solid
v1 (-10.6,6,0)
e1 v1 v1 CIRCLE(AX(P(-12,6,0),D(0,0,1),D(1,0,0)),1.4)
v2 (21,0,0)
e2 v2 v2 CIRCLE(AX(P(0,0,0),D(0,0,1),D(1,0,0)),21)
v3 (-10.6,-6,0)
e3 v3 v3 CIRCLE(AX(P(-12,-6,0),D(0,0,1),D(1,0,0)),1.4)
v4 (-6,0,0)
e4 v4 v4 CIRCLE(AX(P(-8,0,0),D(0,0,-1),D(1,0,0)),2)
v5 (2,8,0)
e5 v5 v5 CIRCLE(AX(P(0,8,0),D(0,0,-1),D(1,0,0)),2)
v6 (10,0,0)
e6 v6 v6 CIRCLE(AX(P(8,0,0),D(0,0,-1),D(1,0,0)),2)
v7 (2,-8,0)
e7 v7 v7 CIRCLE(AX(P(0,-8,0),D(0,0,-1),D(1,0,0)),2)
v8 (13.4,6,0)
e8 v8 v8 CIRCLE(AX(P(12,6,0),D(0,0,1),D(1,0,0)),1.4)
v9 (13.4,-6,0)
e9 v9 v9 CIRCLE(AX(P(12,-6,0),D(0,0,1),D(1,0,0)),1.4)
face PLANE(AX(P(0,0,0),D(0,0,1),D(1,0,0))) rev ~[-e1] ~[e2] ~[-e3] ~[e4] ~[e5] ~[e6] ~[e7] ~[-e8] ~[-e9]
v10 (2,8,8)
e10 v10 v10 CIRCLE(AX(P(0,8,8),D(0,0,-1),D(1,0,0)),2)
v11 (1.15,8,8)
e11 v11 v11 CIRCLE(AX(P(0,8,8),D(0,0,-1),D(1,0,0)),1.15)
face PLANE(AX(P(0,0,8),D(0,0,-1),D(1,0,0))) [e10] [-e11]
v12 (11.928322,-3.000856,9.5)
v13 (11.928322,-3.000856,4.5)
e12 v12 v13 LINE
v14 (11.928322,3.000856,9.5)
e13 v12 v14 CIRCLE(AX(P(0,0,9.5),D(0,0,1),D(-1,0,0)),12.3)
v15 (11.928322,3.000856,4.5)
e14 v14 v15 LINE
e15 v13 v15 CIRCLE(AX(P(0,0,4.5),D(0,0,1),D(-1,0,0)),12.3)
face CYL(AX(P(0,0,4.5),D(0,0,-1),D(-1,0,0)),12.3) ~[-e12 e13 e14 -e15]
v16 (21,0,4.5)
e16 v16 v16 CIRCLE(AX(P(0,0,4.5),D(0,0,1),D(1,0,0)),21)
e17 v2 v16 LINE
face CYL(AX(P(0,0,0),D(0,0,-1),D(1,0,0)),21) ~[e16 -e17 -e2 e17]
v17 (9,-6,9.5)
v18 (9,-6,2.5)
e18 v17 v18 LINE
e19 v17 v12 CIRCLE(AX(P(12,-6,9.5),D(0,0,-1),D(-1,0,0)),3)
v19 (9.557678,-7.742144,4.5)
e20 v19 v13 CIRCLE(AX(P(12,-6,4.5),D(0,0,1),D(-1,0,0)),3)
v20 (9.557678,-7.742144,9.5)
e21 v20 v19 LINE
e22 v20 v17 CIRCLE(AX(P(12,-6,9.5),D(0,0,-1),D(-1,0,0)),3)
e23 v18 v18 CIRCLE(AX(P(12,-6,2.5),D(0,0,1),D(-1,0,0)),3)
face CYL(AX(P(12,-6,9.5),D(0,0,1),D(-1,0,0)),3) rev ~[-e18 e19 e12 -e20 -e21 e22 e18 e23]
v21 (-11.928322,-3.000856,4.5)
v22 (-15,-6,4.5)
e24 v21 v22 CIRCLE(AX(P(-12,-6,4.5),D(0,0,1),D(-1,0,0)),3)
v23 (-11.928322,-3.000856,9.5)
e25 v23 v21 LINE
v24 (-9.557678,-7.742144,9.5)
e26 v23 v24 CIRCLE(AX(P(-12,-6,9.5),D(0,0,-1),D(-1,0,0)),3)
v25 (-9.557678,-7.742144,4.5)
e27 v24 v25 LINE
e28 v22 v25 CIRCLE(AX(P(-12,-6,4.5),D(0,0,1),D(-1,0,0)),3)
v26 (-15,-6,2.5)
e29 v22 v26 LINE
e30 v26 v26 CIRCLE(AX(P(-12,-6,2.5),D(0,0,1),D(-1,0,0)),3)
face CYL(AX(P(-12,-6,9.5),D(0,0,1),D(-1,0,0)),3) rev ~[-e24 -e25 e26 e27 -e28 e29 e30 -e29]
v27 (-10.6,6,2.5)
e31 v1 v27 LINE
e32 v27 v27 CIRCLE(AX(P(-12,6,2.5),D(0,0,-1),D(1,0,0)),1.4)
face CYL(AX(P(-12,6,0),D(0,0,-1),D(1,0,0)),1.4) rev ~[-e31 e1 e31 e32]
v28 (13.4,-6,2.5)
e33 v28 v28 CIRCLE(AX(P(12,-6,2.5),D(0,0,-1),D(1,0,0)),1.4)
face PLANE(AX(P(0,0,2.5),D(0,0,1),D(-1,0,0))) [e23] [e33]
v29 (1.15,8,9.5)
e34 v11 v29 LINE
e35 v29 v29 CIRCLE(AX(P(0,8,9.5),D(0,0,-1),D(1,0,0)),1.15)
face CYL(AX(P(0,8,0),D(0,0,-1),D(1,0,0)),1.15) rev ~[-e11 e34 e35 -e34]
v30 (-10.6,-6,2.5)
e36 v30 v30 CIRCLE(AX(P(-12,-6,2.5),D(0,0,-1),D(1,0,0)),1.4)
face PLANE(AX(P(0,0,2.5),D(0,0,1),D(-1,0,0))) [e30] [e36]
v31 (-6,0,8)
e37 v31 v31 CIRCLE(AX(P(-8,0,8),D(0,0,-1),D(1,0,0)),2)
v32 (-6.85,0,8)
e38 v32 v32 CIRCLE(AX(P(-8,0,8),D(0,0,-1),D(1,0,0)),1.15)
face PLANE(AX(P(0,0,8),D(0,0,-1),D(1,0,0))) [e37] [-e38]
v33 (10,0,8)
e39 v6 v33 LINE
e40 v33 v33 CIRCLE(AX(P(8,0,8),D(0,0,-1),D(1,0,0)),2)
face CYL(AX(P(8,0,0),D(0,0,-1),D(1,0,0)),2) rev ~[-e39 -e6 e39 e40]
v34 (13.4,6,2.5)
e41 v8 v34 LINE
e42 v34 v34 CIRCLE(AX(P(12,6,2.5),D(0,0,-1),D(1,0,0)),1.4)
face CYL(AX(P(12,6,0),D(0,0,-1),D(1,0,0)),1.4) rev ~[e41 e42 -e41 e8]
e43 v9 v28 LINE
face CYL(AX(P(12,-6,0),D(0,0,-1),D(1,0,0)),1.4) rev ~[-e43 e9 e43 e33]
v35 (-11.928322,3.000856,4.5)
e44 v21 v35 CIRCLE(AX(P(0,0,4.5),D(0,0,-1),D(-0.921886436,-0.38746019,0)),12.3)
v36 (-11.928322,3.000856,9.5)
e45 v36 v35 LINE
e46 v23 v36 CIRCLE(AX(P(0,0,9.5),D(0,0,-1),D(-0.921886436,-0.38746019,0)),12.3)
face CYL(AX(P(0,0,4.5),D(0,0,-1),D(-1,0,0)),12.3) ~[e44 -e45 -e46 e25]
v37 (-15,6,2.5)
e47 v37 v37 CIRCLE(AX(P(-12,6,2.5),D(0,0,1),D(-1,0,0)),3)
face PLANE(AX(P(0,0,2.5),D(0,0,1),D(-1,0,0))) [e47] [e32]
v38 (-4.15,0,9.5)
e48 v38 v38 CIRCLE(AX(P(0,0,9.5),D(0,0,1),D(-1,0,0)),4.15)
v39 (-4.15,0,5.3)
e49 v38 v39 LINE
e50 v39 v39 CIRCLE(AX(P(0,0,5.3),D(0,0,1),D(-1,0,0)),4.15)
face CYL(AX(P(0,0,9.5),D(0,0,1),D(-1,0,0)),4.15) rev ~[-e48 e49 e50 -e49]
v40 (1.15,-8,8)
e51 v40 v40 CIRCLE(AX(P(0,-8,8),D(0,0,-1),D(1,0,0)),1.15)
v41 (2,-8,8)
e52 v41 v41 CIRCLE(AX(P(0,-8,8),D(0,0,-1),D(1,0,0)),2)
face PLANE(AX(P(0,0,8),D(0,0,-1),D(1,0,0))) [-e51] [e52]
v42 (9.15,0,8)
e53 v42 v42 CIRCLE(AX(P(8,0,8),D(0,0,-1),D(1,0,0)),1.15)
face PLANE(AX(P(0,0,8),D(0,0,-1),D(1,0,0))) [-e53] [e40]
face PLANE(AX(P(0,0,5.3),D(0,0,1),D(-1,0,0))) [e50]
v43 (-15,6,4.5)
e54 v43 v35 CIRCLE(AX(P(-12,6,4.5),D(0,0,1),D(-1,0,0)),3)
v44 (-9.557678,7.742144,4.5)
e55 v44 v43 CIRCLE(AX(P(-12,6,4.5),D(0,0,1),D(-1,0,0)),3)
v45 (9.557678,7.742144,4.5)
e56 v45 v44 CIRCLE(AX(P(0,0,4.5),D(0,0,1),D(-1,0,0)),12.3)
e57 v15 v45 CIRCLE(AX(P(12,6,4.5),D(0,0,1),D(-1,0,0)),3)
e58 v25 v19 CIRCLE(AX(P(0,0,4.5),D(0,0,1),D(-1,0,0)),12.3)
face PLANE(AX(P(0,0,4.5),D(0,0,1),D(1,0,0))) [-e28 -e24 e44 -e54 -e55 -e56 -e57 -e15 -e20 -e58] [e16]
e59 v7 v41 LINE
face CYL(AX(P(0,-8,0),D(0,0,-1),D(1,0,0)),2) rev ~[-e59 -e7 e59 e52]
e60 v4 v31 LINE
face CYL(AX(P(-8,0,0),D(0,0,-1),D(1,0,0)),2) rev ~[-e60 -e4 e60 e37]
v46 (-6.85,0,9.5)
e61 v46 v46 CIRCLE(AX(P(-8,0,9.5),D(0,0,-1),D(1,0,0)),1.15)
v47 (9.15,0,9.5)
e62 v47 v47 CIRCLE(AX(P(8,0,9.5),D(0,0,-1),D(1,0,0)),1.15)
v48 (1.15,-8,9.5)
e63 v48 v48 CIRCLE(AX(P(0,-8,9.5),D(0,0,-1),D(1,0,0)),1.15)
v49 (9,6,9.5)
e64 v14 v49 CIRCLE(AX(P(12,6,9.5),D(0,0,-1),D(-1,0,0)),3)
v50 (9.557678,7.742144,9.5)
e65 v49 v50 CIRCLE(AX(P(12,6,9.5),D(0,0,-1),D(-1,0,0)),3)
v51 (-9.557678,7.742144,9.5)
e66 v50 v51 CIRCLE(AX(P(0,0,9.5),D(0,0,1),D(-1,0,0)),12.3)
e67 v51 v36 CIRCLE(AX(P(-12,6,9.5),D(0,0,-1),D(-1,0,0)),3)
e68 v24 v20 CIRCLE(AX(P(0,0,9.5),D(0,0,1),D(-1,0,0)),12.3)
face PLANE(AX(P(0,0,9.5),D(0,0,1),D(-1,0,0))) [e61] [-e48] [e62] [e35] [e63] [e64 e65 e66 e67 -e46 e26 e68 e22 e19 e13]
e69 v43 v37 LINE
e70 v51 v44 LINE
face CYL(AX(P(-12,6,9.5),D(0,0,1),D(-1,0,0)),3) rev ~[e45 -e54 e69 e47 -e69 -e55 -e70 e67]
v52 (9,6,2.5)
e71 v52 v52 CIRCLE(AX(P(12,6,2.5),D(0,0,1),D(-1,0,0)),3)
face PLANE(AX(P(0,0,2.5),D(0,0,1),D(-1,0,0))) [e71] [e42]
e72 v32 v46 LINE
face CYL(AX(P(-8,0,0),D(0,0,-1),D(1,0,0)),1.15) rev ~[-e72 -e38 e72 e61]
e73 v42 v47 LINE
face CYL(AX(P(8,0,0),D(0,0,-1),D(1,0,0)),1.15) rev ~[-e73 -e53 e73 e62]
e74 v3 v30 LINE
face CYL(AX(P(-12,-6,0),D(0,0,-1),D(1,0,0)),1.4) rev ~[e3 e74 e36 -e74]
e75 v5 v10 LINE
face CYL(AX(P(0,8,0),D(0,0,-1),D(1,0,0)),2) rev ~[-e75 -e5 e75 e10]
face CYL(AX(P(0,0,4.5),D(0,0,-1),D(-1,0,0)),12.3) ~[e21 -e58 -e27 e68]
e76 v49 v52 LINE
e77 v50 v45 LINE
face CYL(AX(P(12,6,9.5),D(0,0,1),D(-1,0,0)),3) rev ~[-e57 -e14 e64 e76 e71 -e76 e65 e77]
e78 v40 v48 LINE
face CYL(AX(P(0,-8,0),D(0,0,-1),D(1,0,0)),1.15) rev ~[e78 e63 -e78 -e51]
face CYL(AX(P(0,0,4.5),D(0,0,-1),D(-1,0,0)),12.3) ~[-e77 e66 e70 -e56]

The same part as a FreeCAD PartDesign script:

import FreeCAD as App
import Part
import Sketcher
Q = App.Units.Quantity

doc = App.newDocument("Part")
body = doc.addObject("PartDesign::Body", "Body")

# Sketch on XY plane
sketch1 = doc.addObject("Sketcher::SketchObject", "Sketch")
body.addObject(sketch1)
sketch1.AttachmentSupport = (doc.XY_Plane, [""])
sketch1.MapMode = "FlatFace"
sketch1.addGeometry(Part.Circle(App.Vector(0, 0, 0), App.Vector(0, 0, 1), 21), False)
sketch1.addConstraint([
    Sketcher.Constraint("Coincident", 0, 3, -1, 1),
    Sketcher.Constraint("Diameter", 0, Q("42 mm")),
])
pad1 = doc.addObject("PartDesign::Pad", "Pad")
body.addObject(pad1)
pad1.Profile = sketch1
pad1.Length = 4.5

# Sketch on XY plane
sketch2 = doc.addObject("Sketcher::SketchObject", "Sketch001")
body.addObject(sketch2)
sketch2.AttachmentSupport = (doc.XY_Plane, [""])
sketch2.MapMode = "FlatFace"
sketch2.AttachmentOffset = App.Placement(App.Vector(0, 0, 4.5), App.Rotation())
sketch2.addGeometry(Part.Circle(App.Vector(0, 0, 0), App.Vector(0, 0, 1), 12.3), False)
sketch2.addConstraint([
    Sketcher.Constraint("Coincident", 0, 3, -1, 1),
    Sketcher.Constraint("Diameter", 0, Q("24.6 mm")),
])
pad2 = doc.addObject("PartDesign::Pad", "Pad001")
body.addObject(pad2)
pad2.Profile = sketch2
pad2.Length = 5

# Sketch on XY plane
sketch3 = doc.addObject("Sketcher::SketchObject", "Sketch002")
body.addObject(sketch3)
sketch3.AttachmentSupport = (doc.XY_Plane, [""])
sketch3.MapMode = "FlatFace"
sketch3.AttachmentOffset = App.Placement(App.Vector(0, 0, 9.5), App.Rotation())
sketch3.addGeometry(Part.Circle(App.Vector(0, 0, 0), App.Vector(0, 0, 1), 4.15), False)
sketch3.addConstraint([
    Sketcher.Constraint("Coincident", 0, 3, -1, 1),
    Sketcher.Constraint("Diameter", 0, Q("8.3 mm")),
])
pocket1 = doc.addObject("PartDesign::Pocket", "Pocket")
body.addObject(pocket1)
pocket1.Profile = sketch3
pocket1.Length = 4.2

# Sketch on XY plane
sketch4 = doc.addObject("Sketcher::SketchObject", "Sketch003")
body.addObject(sketch4)
sketch4.AttachmentSupport = (doc.XY_Plane, [""])
sketch4.MapMode = "FlatFace"
sketch4.addGeometry([
    Part.Circle(App.Vector(8, 0, 0), App.Vector(0, 0, 1), 1.15),
    Part.Circle(App.Vector(0, -8, 0), App.Vector(0, 0, 1), 1.15),
    Part.Circle(App.Vector(0, 8, 0), App.Vector(0, 0, 1), 1.15),
    Part.Circle(App.Vector(-8, 0, 0), App.Vector(0, 0, 1), 1.15),
], False)
sketch4.addConstraint([
    Sketcher.Constraint("Equal", 0, 1),
    Sketcher.Constraint("Equal", 1, 2),
    Sketcher.Constraint("Equal", 2, 3),
    Sketcher.Constraint("Symmetric", 1, 3, 2, 3, -1, 1),
    Sketcher.Constraint("Symmetric", 0, 3, 3, 3, -1, 1),
    Sketcher.Constraint("PointOnObject", 0, 3, -1),
    Sketcher.Constraint("PointOnObject", 1, 3, -2),
    Sketcher.Constraint("Diameter", 0, Q("2.3 mm")),
    Sketcher.Constraint("DistanceY", 1, 3, 2, 3, Q("16 mm")),
    Sketcher.Constraint("DistanceX", 3, 3, 0, 3, Q("16 mm")),
])
pocket2 = doc.addObject("PartDesign::Pocket", "Pocket001")
body.addObject(pocket2)
pocket2.Profile = sketch4
pocket2.Type = "ThroughAll"
pocket2.Reversed = True

# Sketch on XY plane
sketch5 = doc.addObject("Sketcher::SketchObject", "Sketch004")
body.addObject(sketch5)
sketch5.AttachmentSupport = (doc.XY_Plane, [""])
sketch5.MapMode = "FlatFace"
sketch5.addGeometry([
    Part.Circle(App.Vector(-12, 6, 0), App.Vector(0, 0, 1), 1.4),
    Part.Circle(App.Vector(12, 6, 0), App.Vector(0, 0, 1), 1.4),
    Part.Circle(App.Vector(-12, -6, 0), App.Vector(0, 0, 1), 1.4),
    Part.Circle(App.Vector(12, -6, 0), App.Vector(0, 0, 1), 1.4),
], False)
sketch5.addConstraint([
    Sketcher.Constraint("Equal", 0, 1),
    Sketcher.Constraint("Equal", 1, 2),
    Sketcher.Constraint("Equal", 2, 3),
    Sketcher.Constraint("Symmetric", 1, 3, 2, 3, -1, 1),
    Sketcher.Constraint("Symmetric", 0, 3, 3, 3, -1, 1),
    Sketcher.Constraint("Symmetric", 0, 3, 1, 3, -2),
    Sketcher.Constraint("Diameter", 0, Q("2.8 mm")),
    Sketcher.Constraint("DistanceX", 0, 3, -1, 1, Q("12 mm")),
    Sketcher.Constraint("DistanceY", -1, 1, 0, 3, Q("6 mm")),
])
pocket3 = doc.addObject("PartDesign::Pocket", "Pocket002")
body.addObject(pocket3)
pocket3.Profile = sketch5
pocket3.Type = "ThroughAll"
pocket3.Reversed = True

# Sketch on XY plane
sketch6 = doc.addObject("Sketcher::SketchObject", "Sketch005")
body.addObject(sketch6)
sketch6.AttachmentSupport = (doc.XY_Plane, [""])
sketch6.MapMode = "FlatFace"
sketch6.addGeometry([
    Part.Circle(App.Vector(0, 8, 0), App.Vector(0, 0, 1), 2),  # 0
    Part.Circle(App.Vector(0, 8, 0), App.Vector(0, 0, 1), 1.15),  # 1
    Part.Circle(App.Vector(8, 0, 0), App.Vector(0, 0, 1), 2),  # 2
    Part.Circle(App.Vector(8, 0, 0), App.Vector(0, 0, 1), 1.15),  # 3
    Part.Circle(App.Vector(-8, 0, 0), App.Vector(0, 0, 1), 2),  # 4
    Part.Circle(App.Vector(-8, 0, 0), App.Vector(0, 0, 1), 1.15),  # 5
    Part.Circle(App.Vector(0, -8, 0), App.Vector(0, 0, 1), 2),  # 6
    Part.Circle(App.Vector(0, -8, 0), App.Vector(0, 0, 1), 1.15),  # 7
], False)
sketch6.addConstraint([
    Sketcher.Constraint("Coincident", 1, 3, 0, 3),
    Sketcher.Constraint("Coincident", 3, 3, 2, 3),
    Sketcher.Constraint("Coincident", 5, 3, 4, 3),
    Sketcher.Constraint("Coincident", 7, 3, 6, 3),
    Sketcher.Constraint("Equal", 0, 2),
    Sketcher.Constraint("Equal", 1, 3),
    Sketcher.Constraint("Equal", 2, 4),
    Sketcher.Constraint("Equal", 3, 5),
    Sketcher.Constraint("Equal", 4, 6),
    Sketcher.Constraint("Equal", 5, 7),
    Sketcher.Constraint("Symmetric", 2, 3, 4, 3, -1, 1),
    Sketcher.Constraint("Symmetric", 0, 3, 6, 3, -1, 1),
    Sketcher.Constraint("PointOnObject", 0, 3, -2),
    Sketcher.Constraint("PointOnObject", 2, 3, -1),
    Sketcher.Constraint("Diameter", 0, Q("4 mm")),
    Sketcher.Constraint("Diameter", 1, Q("2.3 mm")),
    Sketcher.Constraint("DistanceY", -1, 1, 0, 3, Q("8 mm")),
    Sketcher.Constraint("DistanceX", -1, 1, 2, 3, Q("8 mm")),
])
pocket4 = doc.addObject("PartDesign::Pocket", "Pocket003")
body.addObject(pocket4)
pocket4.Profile = sketch6
pocket4.Length = 8
pocket4.Reversed = True

# Sketch on XY plane
sketch7 = doc.addObject("Sketcher::SketchObject", "Sketch006")
body.addObject(sketch7)
sketch7.AttachmentSupport = (doc.XY_Plane, [""])
sketch7.MapMode = "FlatFace"
sketch7.AttachmentOffset = App.Placement(App.Vector(0, 0, 9.5), App.Rotation())
sketch7.addGeometry([
    Part.Circle(App.Vector(12, -6, 0), App.Vector(0, 0, 1), 3),
    Part.Circle(App.Vector(12, 6, 0), App.Vector(0, 0, 1), 3),
    Part.Circle(App.Vector(-12, -6, 0), App.Vector(0, 0, 1), 3),
    Part.Circle(App.Vector(-12, 6, 0), App.Vector(0, 0, 1), 3),
], False)
sketch7.addConstraint([
    Sketcher.Constraint("Equal", 0, 1),
    Sketcher.Constraint("Equal", 1, 2),
    Sketcher.Constraint("Equal", 2, 3),
    Sketcher.Constraint("Symmetric", 1, 3, 2, 3, -1, 1),
    Sketcher.Constraint("Symmetric", 0, 3, 3, 3, -1, 1),
    Sketcher.Constraint("Symmetric", 0, 3, 2, 3, -2),
    Sketcher.Constraint("Diameter", 0, Q("6 mm")),
    Sketcher.Constraint("DistanceY", 0, 3, -1, 1, Q("6 mm")),
    Sketcher.Constraint("DistanceX", -1, 1, 0, 3, Q("12 mm")),
])
pocket5 = doc.addObject("PartDesign::Pocket", "Pocket004")
body.addObject(pocket5)
pocket5.Profile = sketch7
pocket5.Length = 7

doc.recompute()
